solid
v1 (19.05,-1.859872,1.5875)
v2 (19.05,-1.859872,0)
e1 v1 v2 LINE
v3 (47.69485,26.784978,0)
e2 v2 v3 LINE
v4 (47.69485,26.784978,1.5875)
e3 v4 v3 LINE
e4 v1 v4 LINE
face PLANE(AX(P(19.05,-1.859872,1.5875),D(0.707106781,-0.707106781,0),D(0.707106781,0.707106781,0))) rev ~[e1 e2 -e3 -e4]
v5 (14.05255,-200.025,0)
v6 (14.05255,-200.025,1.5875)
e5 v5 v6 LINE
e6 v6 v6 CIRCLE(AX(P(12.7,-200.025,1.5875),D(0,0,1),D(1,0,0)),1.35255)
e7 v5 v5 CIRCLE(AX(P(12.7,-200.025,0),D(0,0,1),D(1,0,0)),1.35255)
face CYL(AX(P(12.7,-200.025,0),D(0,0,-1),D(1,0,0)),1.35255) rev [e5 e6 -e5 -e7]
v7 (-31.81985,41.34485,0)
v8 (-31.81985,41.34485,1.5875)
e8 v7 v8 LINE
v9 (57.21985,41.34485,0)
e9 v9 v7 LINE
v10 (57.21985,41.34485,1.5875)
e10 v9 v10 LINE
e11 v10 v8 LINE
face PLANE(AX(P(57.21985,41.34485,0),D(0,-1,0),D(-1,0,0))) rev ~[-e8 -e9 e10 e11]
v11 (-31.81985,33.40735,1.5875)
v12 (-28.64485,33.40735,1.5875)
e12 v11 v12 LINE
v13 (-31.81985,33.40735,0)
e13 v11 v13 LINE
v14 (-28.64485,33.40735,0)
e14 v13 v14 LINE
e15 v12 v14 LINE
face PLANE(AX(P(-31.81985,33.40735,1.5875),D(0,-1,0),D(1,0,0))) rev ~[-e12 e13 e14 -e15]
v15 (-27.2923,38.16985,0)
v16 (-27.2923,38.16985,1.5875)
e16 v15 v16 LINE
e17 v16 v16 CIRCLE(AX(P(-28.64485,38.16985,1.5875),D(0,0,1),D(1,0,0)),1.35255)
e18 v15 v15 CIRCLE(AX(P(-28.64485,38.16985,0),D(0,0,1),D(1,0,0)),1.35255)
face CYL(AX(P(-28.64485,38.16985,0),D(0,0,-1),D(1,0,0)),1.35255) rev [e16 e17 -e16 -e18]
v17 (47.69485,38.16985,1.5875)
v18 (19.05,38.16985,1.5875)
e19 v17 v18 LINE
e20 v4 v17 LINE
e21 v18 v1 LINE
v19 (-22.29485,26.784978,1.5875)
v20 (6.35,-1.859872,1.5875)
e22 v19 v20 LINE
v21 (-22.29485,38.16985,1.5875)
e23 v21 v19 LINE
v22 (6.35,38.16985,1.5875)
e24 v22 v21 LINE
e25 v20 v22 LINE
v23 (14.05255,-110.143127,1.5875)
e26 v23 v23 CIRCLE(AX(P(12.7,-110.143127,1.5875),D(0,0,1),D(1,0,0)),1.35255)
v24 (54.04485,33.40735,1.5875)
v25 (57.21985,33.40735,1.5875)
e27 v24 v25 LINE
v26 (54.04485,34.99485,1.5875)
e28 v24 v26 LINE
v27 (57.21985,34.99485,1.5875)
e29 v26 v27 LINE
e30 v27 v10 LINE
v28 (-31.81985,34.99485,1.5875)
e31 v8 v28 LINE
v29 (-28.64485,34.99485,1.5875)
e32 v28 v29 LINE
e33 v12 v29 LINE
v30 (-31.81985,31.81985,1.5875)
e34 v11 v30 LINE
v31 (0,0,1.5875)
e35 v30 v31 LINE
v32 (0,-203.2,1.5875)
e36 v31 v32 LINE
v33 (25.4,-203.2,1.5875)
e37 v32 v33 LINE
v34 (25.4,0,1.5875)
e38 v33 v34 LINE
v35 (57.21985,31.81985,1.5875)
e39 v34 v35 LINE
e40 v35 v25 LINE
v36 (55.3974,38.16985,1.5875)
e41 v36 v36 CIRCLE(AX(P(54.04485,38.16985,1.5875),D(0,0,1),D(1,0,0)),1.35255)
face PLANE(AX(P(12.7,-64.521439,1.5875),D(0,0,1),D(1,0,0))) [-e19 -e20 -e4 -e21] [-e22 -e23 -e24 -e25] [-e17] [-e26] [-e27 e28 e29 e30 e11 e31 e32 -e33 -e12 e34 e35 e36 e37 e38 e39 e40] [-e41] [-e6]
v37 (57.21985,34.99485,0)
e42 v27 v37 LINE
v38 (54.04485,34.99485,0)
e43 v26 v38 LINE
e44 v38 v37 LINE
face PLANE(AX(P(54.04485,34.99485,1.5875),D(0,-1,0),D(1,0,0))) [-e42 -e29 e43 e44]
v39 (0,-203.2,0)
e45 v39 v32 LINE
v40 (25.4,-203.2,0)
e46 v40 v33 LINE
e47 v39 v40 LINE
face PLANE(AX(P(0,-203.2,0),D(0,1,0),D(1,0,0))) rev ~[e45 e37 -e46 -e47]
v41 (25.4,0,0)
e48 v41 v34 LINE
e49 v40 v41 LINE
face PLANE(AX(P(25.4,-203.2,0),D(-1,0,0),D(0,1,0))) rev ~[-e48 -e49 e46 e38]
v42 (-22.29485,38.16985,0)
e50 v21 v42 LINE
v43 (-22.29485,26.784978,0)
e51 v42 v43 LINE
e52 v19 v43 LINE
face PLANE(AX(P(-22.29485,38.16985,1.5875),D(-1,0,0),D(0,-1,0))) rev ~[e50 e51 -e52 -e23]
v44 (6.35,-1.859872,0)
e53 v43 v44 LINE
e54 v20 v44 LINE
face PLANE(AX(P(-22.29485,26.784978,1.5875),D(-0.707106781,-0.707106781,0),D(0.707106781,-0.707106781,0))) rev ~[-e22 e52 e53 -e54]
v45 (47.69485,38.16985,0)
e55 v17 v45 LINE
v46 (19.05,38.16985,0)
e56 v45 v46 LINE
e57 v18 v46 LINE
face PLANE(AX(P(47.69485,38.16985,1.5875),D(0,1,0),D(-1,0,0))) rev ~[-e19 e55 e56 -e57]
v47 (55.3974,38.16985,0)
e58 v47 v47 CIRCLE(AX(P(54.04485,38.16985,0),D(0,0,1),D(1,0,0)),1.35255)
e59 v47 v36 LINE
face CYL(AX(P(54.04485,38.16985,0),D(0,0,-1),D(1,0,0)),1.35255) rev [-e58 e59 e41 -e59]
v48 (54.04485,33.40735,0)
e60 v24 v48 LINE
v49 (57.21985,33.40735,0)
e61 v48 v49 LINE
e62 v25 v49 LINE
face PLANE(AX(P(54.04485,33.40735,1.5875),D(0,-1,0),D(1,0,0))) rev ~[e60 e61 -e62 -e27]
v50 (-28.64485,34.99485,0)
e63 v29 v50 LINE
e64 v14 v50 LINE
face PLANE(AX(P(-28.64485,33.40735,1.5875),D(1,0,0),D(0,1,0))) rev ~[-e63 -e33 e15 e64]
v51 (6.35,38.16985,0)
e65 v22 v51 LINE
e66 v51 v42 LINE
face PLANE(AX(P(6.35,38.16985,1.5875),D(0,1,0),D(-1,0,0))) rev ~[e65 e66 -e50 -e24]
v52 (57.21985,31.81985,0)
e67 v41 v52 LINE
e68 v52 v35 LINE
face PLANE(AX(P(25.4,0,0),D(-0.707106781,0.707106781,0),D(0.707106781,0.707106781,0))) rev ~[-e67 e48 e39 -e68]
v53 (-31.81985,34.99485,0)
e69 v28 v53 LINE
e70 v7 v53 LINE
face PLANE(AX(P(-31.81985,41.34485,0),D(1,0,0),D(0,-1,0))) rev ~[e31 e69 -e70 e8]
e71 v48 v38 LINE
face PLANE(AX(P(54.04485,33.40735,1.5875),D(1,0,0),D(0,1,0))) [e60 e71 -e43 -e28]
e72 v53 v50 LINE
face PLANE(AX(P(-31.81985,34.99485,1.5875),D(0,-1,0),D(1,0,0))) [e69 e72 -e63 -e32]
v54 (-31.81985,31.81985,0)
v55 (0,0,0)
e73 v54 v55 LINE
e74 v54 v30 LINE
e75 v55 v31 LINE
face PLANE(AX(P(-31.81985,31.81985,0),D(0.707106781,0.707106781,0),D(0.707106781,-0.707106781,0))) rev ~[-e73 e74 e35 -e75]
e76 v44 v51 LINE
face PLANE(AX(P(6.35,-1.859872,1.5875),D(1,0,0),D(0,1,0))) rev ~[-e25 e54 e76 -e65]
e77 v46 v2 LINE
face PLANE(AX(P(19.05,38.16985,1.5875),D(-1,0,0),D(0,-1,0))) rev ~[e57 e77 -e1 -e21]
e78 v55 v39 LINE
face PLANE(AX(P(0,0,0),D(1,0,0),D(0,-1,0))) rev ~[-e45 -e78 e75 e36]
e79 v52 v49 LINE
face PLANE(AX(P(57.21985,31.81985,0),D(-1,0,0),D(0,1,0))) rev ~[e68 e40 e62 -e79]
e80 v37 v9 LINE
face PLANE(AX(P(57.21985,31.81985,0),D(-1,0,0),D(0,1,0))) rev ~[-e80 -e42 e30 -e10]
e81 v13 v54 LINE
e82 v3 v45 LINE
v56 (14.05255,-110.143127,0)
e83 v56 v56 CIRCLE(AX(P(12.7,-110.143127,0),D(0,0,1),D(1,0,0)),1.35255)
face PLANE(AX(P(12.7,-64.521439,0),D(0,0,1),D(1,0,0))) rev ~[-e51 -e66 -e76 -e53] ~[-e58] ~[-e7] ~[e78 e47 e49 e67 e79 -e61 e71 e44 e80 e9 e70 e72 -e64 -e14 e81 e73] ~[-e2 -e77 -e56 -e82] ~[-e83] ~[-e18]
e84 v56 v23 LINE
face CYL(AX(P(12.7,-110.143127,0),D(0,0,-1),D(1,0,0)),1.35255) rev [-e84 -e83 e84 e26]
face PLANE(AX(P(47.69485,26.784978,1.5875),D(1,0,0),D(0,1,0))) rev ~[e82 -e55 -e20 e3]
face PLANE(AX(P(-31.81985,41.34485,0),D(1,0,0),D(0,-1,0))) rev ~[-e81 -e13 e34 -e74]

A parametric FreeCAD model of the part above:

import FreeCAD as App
import Part
import Sketcher
from FreeCAD import Vector
Q = App.Units.Quantity


def add_polygon(sketch, points):
    """Adds a closed chain of lines whose ends are joined by coincident constraints."""
    first, n = sketch.GeometryCount, len(points)
    for a, b in zip(points, points[1:] + points[:1]):
        sketch.addGeometry(Part.LineSegment(App.Vector(*a, 0), App.Vector(*b, 0)), False)
    for i in range(n):
        sketch.addConstraint(Sketcher.Constraint("Coincident", first + i, 2, first + (i + 1) % n, 1))

doc = App.newDocument("Part")
body = doc.addObject("PartDesign::Body", "Body")

# Sketch on XY plane
sketch1 = doc.addObject("Sketcher::SketchObject", "Sketch")
body.addObject(sketch1)
sketch1.AttachmentSupport = (doc.XY_Plane, [""])
sketch1.MapMode = "FlatFace"
add_polygon(sketch1, [(0, 0), (0, -203.2), (25.4, -203.2), (25.4, 0), (57.2, 31.8), (57.2, 41.3), (-31.8, 41.3), (-31.8, 31.8)])  # lines 0-7
sketch1.addGeometry(Part.Circle(Vector(12.7, -200, 0), Vector(0, 0, 1), 1.4), False)  # 8
sketch1.addGeometry(Part.Circle(Vector(12.7, -110.1, 0), Vector(0, 0, 1), 1.4), False)  # 9
sketch1.addGeometry(Part.Circle(Vector(-28.6, 38.2, 0), Vector(0, 0, 1), 1.4), False)  # 10
sketch1.addGeometry(Part.Circle(Vector(54, 38.2, 0), Vector(0, 0, 1), 1.4), False)  # 11
sketch1.addConstraint(Sketcher.Constraint("Vertical", 0))
sketch1.addConstraint(Sketcher.Constraint("Horizontal", 1))
sketch1.addConstraint(Sketcher.Constraint("Vertical", 2))
sketch1.addConstraint(Sketcher.Constraint("Vertical", 4))
sketch1.addConstraint(Sketcher.Constraint("Horizontal", 5))
sketch1.addConstraint(Sketcher.Constraint("Vertical", 6))
sketch1.addConstraint(Sketcher.Constraint("Coincident", 7, 2, -1, 1))
sketch1.addConstraint(Sketcher.Constraint("Equal", 8, 9))
sketch1.addConstraint(Sketcher.Constraint("Equal", 9, 10))
sketch1.addConstraint(Sketcher.Constraint("Equal", 10, 11))
sketch1.addConstraint(Sketcher.Constraint("PointOnObject", 2, 2, -1))
sketch1.addConstraint(Sketcher.Constraint("Perpendicular", 3, 7))
sketch1.addConstraint(Sketcher.Constraint("Horizontal", 10, 3, 11, 3))
sketch1.addConstraint(Sketcher.Constraint("Horizontal", 3, 2, 6, 2))
sketch1.addConstraint(Sketcher.Constraint("Vertical", 8, 3, 9, 3))
sketch1.addConstraint(Sketcher.Constraint("Equal", 3, 7))
sketch1.addConstraint(Sketcher.Constraint("DistanceX", 1, 1, 1, 2, Q("1 in")))
sketch1.addConstraint(Sketcher.Constraint("DistanceY", 0, 2, 0, 1, Q("8 in")))
sketch1.addConstraint(Sketcher.Constraint("Diameter", 8, Q("0.1065 in")))
sketch1.addConstraint(Sketcher.Constraint("DistanceX", -1, 1, 8, 3, Q("0.5 in")))
sketch1.addConstraint(Sketcher.Constraint("DistanceY", 4, 1, 4, 2, Q("0.375 in")))
sketch1.addConstraint(Sketcher.Constraint("DistanceY", 3, 2, 11, 3, Q("0.25 in")))
sketch1.addConstraint(Sketcher.Constraint("DistanceX", 5, 2, 5, 1, Q("3.5055 in")))
sketch1.addConstraint(Sketcher.Constraint("DistanceY", 8, 3, -1, 1, Q("7.875 in")))
sketch1.addConstraint(Sketcher.Constraint("DistanceX", 11, 3, 3, 2, Q("0.125 in")))
sketch1.addConstraint(Sketcher.Constraint("DistanceX", 5, 2, 10, 3, Q("0.125 in")))
sketch1.addConstraint(Sketcher.Constraint("DistanceY", 9, 3, -1, 1, 110.143127))
pad1 = doc.addObject("PartDesign::Pad", "Pad")
body.addObject(pad1)
pad1.Profile = sketch1
pad1.Length = Q("0.0625 in")

# Sketch on XY plane
sketch2 = doc.addObject("Sketcher::SketchObject", "Sketch001")
body.addObject(sketch2)
sketch2.AttachmentSupport = (doc.XY_Plane, [""])
sketch2.MapMode = "FlatFace"
sketch2.AttachmentOffset = App.Placement(Vector(0, 0, 0.0625 * 25.4), App.Rotation())
add_polygon(sketch2, [(-31.8, 35), (-31.8, 33.4), (-28.6, 33.4), (-28.6, 35)])  # lines 0-3
add_polygon(sketch2, [(54, 35), (54, 33.4), (57.2, 33.4), (57.2, 35)])  # lines 4-7
add_polygon(sketch2, [(-22.3, 38.2), (-22.3, 26.8), (6.3, -1.9), (6.3, 38.2)])  # lines 8-11
add_polygon(sketch2, [(47.7, 38.2), (19.1, 38.2), (19.1, -1.9), (47.7, 26.8)])  # lines 12-15
sketch2.addConstraint(Sketcher.Constraint("Vertical", 0))
sketch2.addConstraint(Sketcher.Constraint("Horizontal", 1))
sketch2.addConstraint(Sketcher.Constraint("Vertical", 2))
sketch2.addConstraint(Sketcher.Constraint("Horizontal", 3))
sketch2.addConstraint(Sketcher.Constraint("Vertical", 4))
sketch2.addConstraint(Sketcher.Constraint("Horizontal", 5))
sketch2.addConstraint(Sketcher.Constraint("Vertical", 6))
sketch2.addConstraint(Sketcher.Constraint("Horizontal", 7))
sketch2.addConstraint(Sketcher.Constraint("Vertical", 8))
sketch2.addConstraint(Sketcher.Constraint("Vertical", 10))
sketch2.addConstraint(Sketcher.Constraint("Horizontal", 11))
sketch2.addConstraint(Sketcher.Constraint("Horizontal", 12))
sketch2.addConstraint(Sketcher.Constraint("Vertical", 13))
sketch2.addConstraint(Sketcher.Constraint("Vertical", 15))
sketch2.addConstraint(Sketcher.Constraint("Perpendicular", 9, 14))
sketch2.addConstraint(Sketcher.Constraint("Horizontal", 1, 2, 4, 2))
sketch2.addConstraint(Sketcher.Constraint("Horizontal", 3, 2, 6, 2))
sketch2.addConstraint(Sketcher.Constraint("Horizontal", 11, 2, 12, 2))
sketch2.addConstraint(Sketcher.Constraint("Horizontal", 9, 2, 13, 2))
sketch2.addConstraint(Sketcher.Constraint("Horizontal", 8, 2, 14, 2))
sketch2.addConstraint(Sketcher.Constraint("Equal", 3, 5))
sketch2.addConstraint(Sketcher.Constraint("Equal", 11, 12))
sketch2.addConstraint(Sketcher.Constraint("DistanceX", 10, 2, 12, 2, Q("0.5 in")))
sketch2.addConstraint(Sketcher.Constraint("DistanceX", 1, 1, 1, 2, Q("0.125 in")))
sketch2.addConstraint(Sketcher.Constraint("DistanceY", 0, 2, 0, 1, Q("0.0625 in")))
sketch2.addConstraint(Sketcher.Constraint("DistanceX", -1, 1, 9, 2, Q("0.25 in")))
sketch2.addConstraint(Sketcher.Constraint("DistanceX", 1, 2, 8, 2, Q("0.25 in")))
sketch2.addConstraint(Sketcher.Constraint("DistanceX", 14, 2, 4, 2, Q("0.25 in")))
sketch2.addConstraint(Sketcher.Constraint("DistanceY", 2, 2, 10, 2, Q("0.125 in")))
sketch2.addConstraint(Sketcher.Constraint("DistanceX", 1, 2, 4, 2, Q("3.2555 in")))
sketch2.addConstraint(Sketcher.Constraint("DistanceY", 8, 2, 8, 1, 11.384872))
sketch2.addConstraint(Sketcher.Constraint("DistanceY", -1, 1, 0, 2, 33.40735))
pocket1 = doc.addObject("PartDesign::Pocket", "Pocket")
body.addObject(pocket1)
pocket1.Profile = sketch2
pocket1.Type = "ThroughAll"

doc.recompute()
